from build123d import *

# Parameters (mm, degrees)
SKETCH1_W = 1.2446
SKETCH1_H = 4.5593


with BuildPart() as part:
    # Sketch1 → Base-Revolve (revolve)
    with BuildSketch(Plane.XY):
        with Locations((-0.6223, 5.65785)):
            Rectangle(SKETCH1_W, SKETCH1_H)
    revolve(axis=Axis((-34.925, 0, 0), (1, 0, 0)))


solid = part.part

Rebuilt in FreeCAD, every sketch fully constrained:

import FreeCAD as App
import Part
import Sketcher

V = App.Vector
Q = App.Units.Quantity

doc = App.newDocument("Part")
params = doc.addObject("Spreadsheet::Sheet", "Params")
for row, (alias, value) in enumerate([
    ("sketch1_width", "0.049 in"),
    ("revolution_angle", "360 deg"),
], start=1):
    params.set(f"A{row}", alias)
    params.set(f"B{row}", "=" + value)
    params.setAlias(f"B{row}", alias)

body = doc.addObject("PartDesign::Body", "Body")

sketch1 = body.newObject("Sketcher::SketchObject", "Sketch")
sketch1.AttachmentSupport = (doc.getObject("XY_Plane"), [""])
sketch1.MapMode = "FlatFace"
sketch1.addGeometry([
    Part.LineSegment(V(-1.2446, 7.9375, 0), V(-1.2446, 3.3782, 0)),
    Part.LineSegment(V(-1.2446, 3.3782, 0), V(0, 3.3782, 0)),
    Part.LineSegment(V(0, 3.3782, 0), V(0, 7.9375, 0)),
    Part.LineSegment(V(0, 7.9375, 0), V(-1.2446, 7.9375, 0)),
], False)
sketch1.addConstraint([
    Sketcher.Constraint("Coincident", 0, 2, 1, 1),
    Sketcher.Constraint("Coincident", 1, 2, 2, 1),
    Sketcher.Constraint("Coincident", 2, 2, 3, 1),
    Sketcher.Constraint("Coincident", 3, 2, 0, 1),
    Sketcher.Constraint("Vertical", 0),
    Sketcher.Constraint("Horizontal", 1),
    Sketcher.Constraint("Vertical", 2),
    Sketcher.Constraint("Horizontal", 3),
    Sketcher.Constraint("PointOnObject", 1, 2, -2),
    Sketcher.Constraint("DistanceX", 1, 1, 1, 2, Q("0.049 in")),
    Sketcher.Constraint("DistanceY", 0, 2, 0, 1, Q("0.1795 in")),
    Sketcher.Constraint("DistanceY", -1, 1, 0, 2, Q("0.133 in")),
])
sketch1.setExpression("Constraints[9]", "Params.sketch1_width")
revolution = body.newObject("PartDesign::Revolution", "Revolution")
revolution.Profile = sketch1
revolution.ReferenceAxis = (sketch1, ["H_Axis"])
revolution.setExpression("Angle", "Params.revolution_angle")

doc.recompute()
